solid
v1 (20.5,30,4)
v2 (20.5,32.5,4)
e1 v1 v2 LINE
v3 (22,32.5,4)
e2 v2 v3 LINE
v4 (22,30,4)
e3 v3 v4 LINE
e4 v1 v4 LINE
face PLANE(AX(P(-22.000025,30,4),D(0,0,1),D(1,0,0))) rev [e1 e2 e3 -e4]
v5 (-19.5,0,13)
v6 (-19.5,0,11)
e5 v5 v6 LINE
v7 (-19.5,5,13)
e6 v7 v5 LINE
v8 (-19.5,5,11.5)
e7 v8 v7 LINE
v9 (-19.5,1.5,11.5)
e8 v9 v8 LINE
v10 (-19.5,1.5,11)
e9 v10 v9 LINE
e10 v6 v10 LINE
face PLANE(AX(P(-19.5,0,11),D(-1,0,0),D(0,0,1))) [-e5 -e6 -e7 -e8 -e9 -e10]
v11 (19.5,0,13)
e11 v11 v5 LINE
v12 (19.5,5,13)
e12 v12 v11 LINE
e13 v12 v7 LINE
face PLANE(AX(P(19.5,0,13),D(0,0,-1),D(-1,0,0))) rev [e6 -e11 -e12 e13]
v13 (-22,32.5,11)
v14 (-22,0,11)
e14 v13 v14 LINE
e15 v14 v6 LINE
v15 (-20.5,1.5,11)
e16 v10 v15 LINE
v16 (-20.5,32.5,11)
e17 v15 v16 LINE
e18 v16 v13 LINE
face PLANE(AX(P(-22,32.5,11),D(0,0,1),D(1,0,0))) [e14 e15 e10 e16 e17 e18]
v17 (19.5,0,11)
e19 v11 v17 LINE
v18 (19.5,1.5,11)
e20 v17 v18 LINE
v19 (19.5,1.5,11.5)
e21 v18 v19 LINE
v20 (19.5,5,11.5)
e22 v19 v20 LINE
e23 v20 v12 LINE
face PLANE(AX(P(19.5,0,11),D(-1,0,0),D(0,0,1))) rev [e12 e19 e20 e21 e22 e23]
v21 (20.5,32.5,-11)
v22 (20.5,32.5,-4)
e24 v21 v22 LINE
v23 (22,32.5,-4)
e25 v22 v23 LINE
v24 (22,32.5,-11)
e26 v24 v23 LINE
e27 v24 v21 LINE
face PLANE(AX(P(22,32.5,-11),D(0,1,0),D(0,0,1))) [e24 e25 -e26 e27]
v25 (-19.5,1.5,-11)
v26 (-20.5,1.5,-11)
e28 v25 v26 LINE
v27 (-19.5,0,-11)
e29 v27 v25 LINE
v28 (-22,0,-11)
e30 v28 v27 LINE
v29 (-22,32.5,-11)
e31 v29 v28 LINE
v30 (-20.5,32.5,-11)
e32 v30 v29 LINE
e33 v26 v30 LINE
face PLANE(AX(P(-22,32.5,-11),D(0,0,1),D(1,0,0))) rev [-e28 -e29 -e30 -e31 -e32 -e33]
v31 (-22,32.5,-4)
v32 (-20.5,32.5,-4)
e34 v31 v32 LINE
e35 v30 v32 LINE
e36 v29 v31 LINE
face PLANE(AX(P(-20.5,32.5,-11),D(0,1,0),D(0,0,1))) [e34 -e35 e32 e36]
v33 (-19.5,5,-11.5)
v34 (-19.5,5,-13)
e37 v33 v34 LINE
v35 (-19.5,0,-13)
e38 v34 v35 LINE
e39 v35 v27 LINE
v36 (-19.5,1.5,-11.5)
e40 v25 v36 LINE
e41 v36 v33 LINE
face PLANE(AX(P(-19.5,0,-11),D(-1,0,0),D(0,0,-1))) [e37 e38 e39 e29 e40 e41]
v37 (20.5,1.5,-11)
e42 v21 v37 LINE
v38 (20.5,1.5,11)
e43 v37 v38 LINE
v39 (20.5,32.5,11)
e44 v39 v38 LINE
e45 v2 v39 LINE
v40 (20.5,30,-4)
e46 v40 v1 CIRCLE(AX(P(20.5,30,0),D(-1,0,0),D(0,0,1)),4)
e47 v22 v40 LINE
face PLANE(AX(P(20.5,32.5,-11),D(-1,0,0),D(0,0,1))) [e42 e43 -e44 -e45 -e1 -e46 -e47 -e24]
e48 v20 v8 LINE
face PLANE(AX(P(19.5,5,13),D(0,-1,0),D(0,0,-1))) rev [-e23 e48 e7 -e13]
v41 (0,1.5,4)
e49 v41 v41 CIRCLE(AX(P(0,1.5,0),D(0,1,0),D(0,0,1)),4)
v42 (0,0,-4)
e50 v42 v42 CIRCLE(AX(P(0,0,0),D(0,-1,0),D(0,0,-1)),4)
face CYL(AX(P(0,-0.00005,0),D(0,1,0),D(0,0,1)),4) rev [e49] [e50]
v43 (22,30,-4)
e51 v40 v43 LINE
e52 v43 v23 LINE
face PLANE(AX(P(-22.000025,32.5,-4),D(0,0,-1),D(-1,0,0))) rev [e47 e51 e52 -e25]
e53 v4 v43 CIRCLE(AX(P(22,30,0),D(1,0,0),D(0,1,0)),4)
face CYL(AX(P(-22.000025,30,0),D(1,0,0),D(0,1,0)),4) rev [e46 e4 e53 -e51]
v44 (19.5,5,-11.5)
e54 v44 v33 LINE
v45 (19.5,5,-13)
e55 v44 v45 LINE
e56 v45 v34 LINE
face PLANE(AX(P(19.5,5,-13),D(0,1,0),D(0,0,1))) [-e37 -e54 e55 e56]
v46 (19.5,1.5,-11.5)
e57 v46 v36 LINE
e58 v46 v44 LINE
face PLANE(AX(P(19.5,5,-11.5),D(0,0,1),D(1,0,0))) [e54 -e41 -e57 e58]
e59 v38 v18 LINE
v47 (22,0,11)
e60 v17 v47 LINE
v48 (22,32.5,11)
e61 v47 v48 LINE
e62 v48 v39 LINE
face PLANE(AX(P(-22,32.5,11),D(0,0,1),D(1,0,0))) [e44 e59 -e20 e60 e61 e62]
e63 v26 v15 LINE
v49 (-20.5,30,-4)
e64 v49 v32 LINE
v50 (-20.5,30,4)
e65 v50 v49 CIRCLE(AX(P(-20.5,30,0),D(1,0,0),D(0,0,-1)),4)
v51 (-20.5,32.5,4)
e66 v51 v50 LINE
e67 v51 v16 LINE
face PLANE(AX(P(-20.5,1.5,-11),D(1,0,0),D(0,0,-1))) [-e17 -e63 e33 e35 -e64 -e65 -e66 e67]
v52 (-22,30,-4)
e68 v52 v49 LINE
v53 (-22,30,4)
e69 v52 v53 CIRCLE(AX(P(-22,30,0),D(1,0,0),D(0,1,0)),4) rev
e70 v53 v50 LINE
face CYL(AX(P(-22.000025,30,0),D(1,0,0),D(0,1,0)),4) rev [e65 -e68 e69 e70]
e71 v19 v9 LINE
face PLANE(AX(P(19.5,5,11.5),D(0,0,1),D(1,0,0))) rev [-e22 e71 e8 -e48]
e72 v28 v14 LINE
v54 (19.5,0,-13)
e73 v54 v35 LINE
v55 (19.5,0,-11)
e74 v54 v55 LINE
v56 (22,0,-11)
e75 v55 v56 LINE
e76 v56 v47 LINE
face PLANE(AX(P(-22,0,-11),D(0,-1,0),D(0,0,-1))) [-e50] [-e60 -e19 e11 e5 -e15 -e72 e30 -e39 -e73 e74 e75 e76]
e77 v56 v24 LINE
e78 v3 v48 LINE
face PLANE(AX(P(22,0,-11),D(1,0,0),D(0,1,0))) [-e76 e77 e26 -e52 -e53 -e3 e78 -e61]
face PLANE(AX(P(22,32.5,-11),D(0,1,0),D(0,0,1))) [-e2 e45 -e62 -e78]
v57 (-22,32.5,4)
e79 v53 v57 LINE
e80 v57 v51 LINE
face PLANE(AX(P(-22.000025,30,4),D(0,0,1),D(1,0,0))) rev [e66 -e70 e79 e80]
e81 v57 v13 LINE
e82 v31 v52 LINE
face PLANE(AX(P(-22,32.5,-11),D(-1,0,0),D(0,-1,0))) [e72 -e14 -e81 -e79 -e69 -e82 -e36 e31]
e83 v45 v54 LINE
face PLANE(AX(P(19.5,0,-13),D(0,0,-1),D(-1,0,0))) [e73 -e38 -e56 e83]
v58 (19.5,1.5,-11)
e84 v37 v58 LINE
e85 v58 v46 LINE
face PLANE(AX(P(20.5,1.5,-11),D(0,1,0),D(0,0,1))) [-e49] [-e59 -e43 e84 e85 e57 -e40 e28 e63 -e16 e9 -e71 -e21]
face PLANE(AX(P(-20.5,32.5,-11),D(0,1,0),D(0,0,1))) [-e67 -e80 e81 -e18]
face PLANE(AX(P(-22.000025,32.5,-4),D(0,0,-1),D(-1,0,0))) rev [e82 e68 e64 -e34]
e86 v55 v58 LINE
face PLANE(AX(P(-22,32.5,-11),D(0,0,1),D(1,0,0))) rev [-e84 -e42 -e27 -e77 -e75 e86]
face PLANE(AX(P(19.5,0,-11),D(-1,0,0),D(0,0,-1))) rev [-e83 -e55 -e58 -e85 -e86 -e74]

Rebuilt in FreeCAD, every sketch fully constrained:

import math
import FreeCAD as App
import Part
import Sketcher
from FreeCAD import Vector
Q = App.Units.Quantity


def add_polygon(sketch, points):
    """Adds a closed chain of lines whose ends are joined by coincident constraints."""
    first, n = sketch.GeometryCount, len(points)
    for a, b in zip(points, points[1:] + points[:1]):
        sketch.addGeometry(Part.LineSegment(App.Vector(*a, 0), App.Vector(*b, 0)), False)
    for i in range(n):
        sketch.addConstraint(Sketcher.Constraint("Coincident", first + i, 2, first + (i + 1) % n, 1))

doc = App.newDocument("Part")
body = doc.addObject("PartDesign::Body", "Body")

sketch1 = body.newObject("Sketcher::SketchObject", "Sketch")
sketch1.AttachmentSupport = (doc.getObject("XY_Plane"), [""])
sketch1.MapMode = "FlatFace"
add_polygon(sketch1, [(-22, 32.5), (-22, 0), (22, 0), (22, 32.5), (20.5, 32.5), (20.5, 1.5), (-20.5, 1.5), (-20.5, 32.5)])
sketch1.addConstraint([
    Sketcher.Constraint("Vertical", 0),
    Sketcher.Constraint("Horizontal", 1),
    Sketcher.Constraint("Vertical", 2),
    Sketcher.Constraint("Horizontal", 3),
    Sketcher.Constraint("Vertical", 4),
    Sketcher.Constraint("Horizontal", 5),
    Sketcher.Constraint("Vertical", 6),
    Sketcher.Constraint("Horizontal", 7),
    Sketcher.Constraint("Symmetric", 0, 2, 1, 2, -1, 1),
    Sketcher.Constraint("Symmetric", 3, 2, 6, 2, -2),
    Sketcher.Constraint("DistanceX", 1, 1, 1, 2, Q("44 mm")),
    Sketcher.Constraint("DistanceX", 5, 2, 5, 1, Q("41 mm")),
    Sketcher.Constraint("DistanceY", 4, 2, 4, 1, Q("31 mm")),
    Sketcher.Constraint("DistanceY", 0, 2, 0, 1, Q("32.5 mm")),
])
pad1 = body.newObject("PartDesign::Pad", "Pad")
pad1.Profile = sketch1
pad1.Length = 22
pad1.Midplane = True

sketch2 = body.newObject("Sketcher::SketchObject", "Sketch001")
sketch2.AttachmentSupport = (doc.getObject("YZ_Plane"), [""])
sketch2.MapMode = "FlatFace"
add_polygon(sketch2, [(0, 13), (0, 11), (1.5, 11), (1.5, 11.5), (5, 11.5), (5, 13)])
sketch2.addConstraint([
    Sketcher.Constraint("Vertical", 0),
    Sketcher.Constraint("Horizontal", 1),
    Sketcher.Constraint("Vertical", 2),
    Sketcher.Constraint("Horizontal", 3),
    Sketcher.Constraint("Vertical", 4),
    Sketcher.Constraint("Horizontal", 5),
    Sketcher.Constraint("PointOnObject", 0, 2, -2),
    Sketcher.Constraint("Equal", 1, 4),
    Sketcher.Constraint("DistanceX", 5, 2, 5, 1, Q("5 mm")),
    Sketcher.Constraint("DistanceY", 0, 2, 0, 1, Q("2 mm")),
    Sketcher.Constraint("DistanceX", 1, 1, 1, 2, Q("1.5 mm")),
    Sketcher.Constraint("DistanceY", -1, 1, 0, 2, Q("11 mm")),
])
pad2 = body.newObject("PartDesign::Pad", "Pad001")
pad2.Profile = sketch2
pad2.Length = 39
pad2.Midplane = True
doc.recompute()

mirrored = body.newObject("PartDesign::Mirrored", "Mirrored")
mirrored.Originals = [pad2]
mirrored.MirrorPlane = (doc.getObject("XY_Plane"), [""])
body.Tip = mirrored

sketch3 = body.newObject("Sketcher::SketchObject", "Sketch002")
sketch3.AttachmentSupport = (doc.getObject("XZ_Plane"), [""])
sketch3.MapMode = "FlatFace"
sketch3.AttachmentOffset = App.Placement(Vector(0, 0, -1.5), App.Rotation())
sketch3.addGeometry(Part.Circle(Vector(0, 0, 0), Vector(0, 0, 1), 4), False)
sketch3.addConstraint([
    Sketcher.Constraint("Coincident", 0, 3, -1, 1),
    Sketcher.Constraint("Diameter", 0, Q("8 mm")),
])
pocket1 = body.newObject("PartDesign::Pocket", "Pocket")
pocket1.Profile = sketch3
pocket1.Type = "ThroughAll"
pocket1.Reversed = True

sketch4 = body.newObject("Sketcher::SketchObject", "Sketch003")
sketch4.AttachmentSupport = (doc.getObject("YZ_Plane"), [""])
sketch4.MapMode = "FlatFace"
sketch4.AttachmentOffset = App.Placement(Vector(0, 0, 22), App.Rotation())
sketch4.addGeometry([
    Part.LineSegment(Vector(32.5, 4, 0), Vector(30, 4, 0)),
    Part.ArcOfCircle(Part.Circle(Vector(30, 0, 0), Vector(0, 0, 1), 4), math.radians(90), math.radians(270)),
    Part.LineSegment(Vector(30, -4, 0), Vector(32.5, -4, 0)),
    Part.LineSegment(Vector(32.5, -4, 0), Vector(32.5, 4, 0)),
], False)
sketch4.addConstraint([
    Sketcher.Constraint("Tangent", 0, 2, 1, 1),
    Sketcher.Constraint("Tangent", 1, 2, 2, 1),
    Sketcher.Constraint("Coincident", 2, 2, 3, 1),
    Sketcher.Constraint("Coincident", 3, 2, 0, 1),
    Sketcher.Constraint("Horizontal", 0),
    Sketcher.Constraint("Horizontal", 2),
    Sketcher.Constraint("Vertical", 3),
    Sketcher.Constraint("PointOnObject", 1, 3, -1),
    Sketcher.Constraint("Radius", 1, Q("4 mm")),
    Sketcher.Constraint("DistanceX", 0, 2, 0, 1, Q("2.5 mm")),
    Sketcher.Constraint("DistanceX", -1, 1, 1, 3, Q("30 mm")),
])
pocket2 = body.newObject("PartDesign::Pocket", "Pocket001")
pocket2.Profile = sketch4
pocket2.Type = "ThroughAll"

doc.recompute()
